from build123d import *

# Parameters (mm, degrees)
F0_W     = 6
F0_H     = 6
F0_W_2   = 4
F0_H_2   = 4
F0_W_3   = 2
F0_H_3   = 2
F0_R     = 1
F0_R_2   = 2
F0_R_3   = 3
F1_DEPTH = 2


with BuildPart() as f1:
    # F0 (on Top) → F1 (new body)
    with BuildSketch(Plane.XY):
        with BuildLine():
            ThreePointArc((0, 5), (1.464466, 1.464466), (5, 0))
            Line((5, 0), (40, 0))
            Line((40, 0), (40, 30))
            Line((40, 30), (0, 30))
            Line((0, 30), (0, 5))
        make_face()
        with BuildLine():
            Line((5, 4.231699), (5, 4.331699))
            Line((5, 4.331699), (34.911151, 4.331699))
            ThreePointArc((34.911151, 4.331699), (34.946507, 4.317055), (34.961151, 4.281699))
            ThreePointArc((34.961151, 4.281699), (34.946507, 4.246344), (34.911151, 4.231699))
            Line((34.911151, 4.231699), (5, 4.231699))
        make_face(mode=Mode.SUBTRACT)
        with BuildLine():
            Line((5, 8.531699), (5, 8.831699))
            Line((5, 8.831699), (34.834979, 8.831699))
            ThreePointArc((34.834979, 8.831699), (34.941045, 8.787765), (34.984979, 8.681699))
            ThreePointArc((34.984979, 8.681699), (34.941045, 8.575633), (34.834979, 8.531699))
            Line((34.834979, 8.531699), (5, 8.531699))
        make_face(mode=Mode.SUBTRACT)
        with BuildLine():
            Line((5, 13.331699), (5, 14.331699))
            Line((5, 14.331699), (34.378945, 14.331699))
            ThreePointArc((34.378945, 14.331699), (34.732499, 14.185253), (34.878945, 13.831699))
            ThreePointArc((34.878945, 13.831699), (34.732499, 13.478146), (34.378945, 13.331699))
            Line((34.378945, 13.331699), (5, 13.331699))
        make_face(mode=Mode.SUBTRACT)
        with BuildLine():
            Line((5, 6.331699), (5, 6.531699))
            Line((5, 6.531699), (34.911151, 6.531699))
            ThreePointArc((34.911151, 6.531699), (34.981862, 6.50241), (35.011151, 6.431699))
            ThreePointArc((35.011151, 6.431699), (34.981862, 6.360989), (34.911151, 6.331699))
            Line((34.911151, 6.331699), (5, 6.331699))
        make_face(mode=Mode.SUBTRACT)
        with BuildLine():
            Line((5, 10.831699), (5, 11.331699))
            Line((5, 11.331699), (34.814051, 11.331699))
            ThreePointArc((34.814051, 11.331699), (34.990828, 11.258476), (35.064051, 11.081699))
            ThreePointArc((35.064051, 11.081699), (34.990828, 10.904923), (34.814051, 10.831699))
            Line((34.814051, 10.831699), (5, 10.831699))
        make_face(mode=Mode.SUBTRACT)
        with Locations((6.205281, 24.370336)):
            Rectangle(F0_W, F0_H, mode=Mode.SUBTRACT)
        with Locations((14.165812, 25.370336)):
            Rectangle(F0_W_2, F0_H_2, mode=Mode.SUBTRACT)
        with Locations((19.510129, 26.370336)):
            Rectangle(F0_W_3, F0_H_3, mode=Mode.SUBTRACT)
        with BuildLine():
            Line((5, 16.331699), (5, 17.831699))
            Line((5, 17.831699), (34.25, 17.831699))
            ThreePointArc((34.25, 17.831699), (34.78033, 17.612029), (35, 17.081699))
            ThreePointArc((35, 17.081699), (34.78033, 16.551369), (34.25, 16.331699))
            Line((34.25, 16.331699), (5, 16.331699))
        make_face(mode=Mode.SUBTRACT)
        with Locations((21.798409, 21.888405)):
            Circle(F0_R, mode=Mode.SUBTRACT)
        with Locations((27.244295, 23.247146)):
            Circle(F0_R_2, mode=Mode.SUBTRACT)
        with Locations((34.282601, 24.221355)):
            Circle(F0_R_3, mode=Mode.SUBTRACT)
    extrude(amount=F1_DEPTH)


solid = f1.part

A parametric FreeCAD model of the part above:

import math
import FreeCAD as App
import Part
import Sketcher

V = App.Vector


def add_polygon(sketch, points):
    """Adds a closed chain of lines whose ends are joined by coincident constraints."""
    first, n = sketch.GeometryCount, len(points)
    for a, b in zip(points, points[1:] + points[:1]):
        sketch.addGeometry(Part.LineSegment(App.Vector(*a, 0), App.Vector(*b, 0)), False)
    for i in range(n):
        sketch.addConstraint(Sketcher.Constraint("Coincident", first + i, 2, first + (i + 1) % n, 1))

doc = App.newDocument("Part")
body = doc.addObject("PartDesign::Body", "Body")

# Sketch on XY plane
sketch1 = body.newObject("Sketcher::SketchObject", "Sketch")
sketch1.AttachmentSupport = (doc.getObject("XY_Plane"), [""])
sketch1.MapMode = "FlatFace"
sketch1.addGeometry(Part.ArcOfCircle(Part.Circle(V(5, 5, 0), V(0, 0, 1), 5), math.radians(179.999996), math.radians(270.000004)), False)  # 0
sketch1.addGeometry(Part.LineSegment(V(5, 0, 0), V(40, 0, 0)), False)  # 1
sketch1.addGeometry(Part.LineSegment(V(40, 0, 0), V(40, 30, 0)), False)  # 2
sketch1.addGeometry(Part.LineSegment(V(40, 30, 0), V(0, 30, 0)), False)  # 3
sketch1.addGeometry(Part.LineSegment(V(0, 30, 0), V(0, 5, 0)), False)  # 4
sketch1.addGeometry(Part.LineSegment(V(34.911151, 4.231699, 0), V(5, 4.231699, 0)), False)  # 5
sketch1.addGeometry(Part.LineSegment(V(5, 4.231699, 0), V(5, 4.331699, 0)), False)  # 6
sketch1.addGeometry(Part.LineSegment(V(5, 4.331699, 0), V(34.911151, 4.331699, 0)), False)  # 7
sketch1.addGeometry(Part.ArcOfCircle(Part.Circle(V(34.911153, 4.281701, 0), V(0, 0, 1), 0.049998), math.radians(-0.002585), math.radians(90.002585)), False)  # 8
sketch1.addGeometry(Part.ArcOfCircle(Part.Circle(V(34.911152, 4.281698, 0), V(0, 0, 1), 0.049999), math.radians(-90.000629), math.radians(0.000629)), False)  # 9
sketch1.addGeometry(Part.LineSegment(V(34.911151, 6.331699, 0), V(5, 6.331699, 0)), False)  # 10
sketch1.addGeometry(Part.LineSegment(V(5, 6.331699, 0), V(5, 6.531699, 0)), False)  # 11
sketch1.addGeometry(Part.LineSegment(V(5, 6.531699, 0), V(34.911151, 6.531699, 0)), False)  # 12
sketch1.addGeometry(Part.ArcOfCircle(Part.Circle(V(34.911152, 6.4317, 0), V(0, 0, 1), 0.099999), math.radians(-0.00063), math.radians(90.00063)), False)  # 13
sketch1.addGeometry(Part.ArcOfCircle(Part.Circle(V(34.91115, 6.4317, 0), V(0, 0, 1), 0.100001), math.radians(-89.999652), math.radians(-0.000348)), False)  # 14
sketch1.addGeometry(Part.LineSegment(V(34.834979, 8.531699, 0), V(5, 8.531699, 0)), False)  # 15
sketch1.addGeometry(Part.LineSegment(V(5, 8.531699, 0), V(5, 8.831699, 0)), False)  # 16
sketch1.addGeometry(Part.LineSegment(V(5, 8.831699, 0), V(34.834979, 8.831699, 0)), False)  # 17
sketch1.addGeometry(Part.ArcOfCircle(Part.Circle(V(34.834979, 8.681699, 0), V(0, 0, 1), 0.15), math.radians(0.000023), math.radians(89.999977)), False)  # 18
sketch1.addGeometry(Part.ArcOfCircle(Part.Circle(V(34.834979, 8.681699, 0), V(0, 0, 1), 0.15), math.radians(-89.999977), math.radians(-0.000023)), False)  # 19
sketch1.addGeometry(Part.LineSegment(V(34.814051, 10.831699, 0), V(5, 10.831699, 0)), False)  # 20
sketch1.addGeometry(Part.LineSegment(V(5, 10.831699, 0), V(5, 11.331699, 0)), False)  # 21
sketch1.addGeometry(Part.LineSegment(V(5, 11.331699, 0), V(34.814051, 11.331699, 0)), False)  # 22
sketch1.addGeometry(Part.ArcOfCircle(Part.Circle(V(34.814052, 11.0817, 0), V(0, 0, 1), 0.249999), math.radians(-0.000238), math.radians(90.000238)), False)  # 23
sketch1.addGeometry(Part.ArcOfCircle(Part.Circle(V(34.81405, 11.0817, 0), V(0, 0, 1), 0.250001), math.radians(-89.999847), math.radians(-0.000153)), False)  # 24
sketch1.addGeometry(Part.LineSegment(V(34.378945, 13.331699, 0), V(5, 13.331699, 0)), False)  # 25
sketch1.addGeometry(Part.LineSegment(V(5, 13.331699, 0), V(5, 14.331699, 0)), False)  # 26
sketch1.addGeometry(Part.LineSegment(V(5, 14.331699, 0), V(34.378945, 14.331699, 0)), False)  # 27
sketch1.addGeometry(Part.ArcOfCircle(Part.Circle(V(34.378947, 13.831701, 0), V(0, 0, 1), 0.499998), math.radians(-0.000238), math.radians(90.000238)), False)  # 28
sketch1.addGeometry(Part.ArcOfCircle(Part.Circle(V(34.378945, 13.831699, 0), V(0, 0, 1), 0.5), math.radians(-90.000043), math.radians(0.000043)), False)  # 29
sketch1.addGeometry(Part.LineSegment(V(34.25, 16.331699, 0), V(5, 16.331699, 0)), False)  # 30
sketch1.addGeometry(Part.LineSegment(V(5, 16.331699, 0), V(5, 17.831699, 0)), False)  # 31
sketch1.addGeometry(Part.LineSegment(V(5, 17.831699, 0), V(34.25, 17.831699, 0)), False)  # 32
sketch1.addGeometry(Part.ArcOfCircle(Part.Circle(V(34.25, 17.081699, 0), V(0, 0, 1), 0.75), math.radians(0.000022), math.radians(89.999978)), False)  # 33
sketch1.addGeometry(Part.ArcOfCircle(Part.Circle(V(34.25, 17.081699, 0), V(0, 0, 1), 0.75), math.radians(-89.999978), math.radians(-0.000022)), False)  # 34
add_polygon(sketch1, [(9.205281, 21.370336), (3.205281, 21.370336), (3.205281, 27.370336), (9.205281, 27.370336)])  # lines 35-38
add_polygon(sketch1, [(16.165812, 23.370336), (12.165812, 23.370336), (12.165812, 27.370336), (16.165812, 27.370336)])  # lines 39-42
add_polygon(sketch1, [(20.510129, 25.370336), (18.510129, 25.370336), (18.510129, 27.370336), (20.510129, 27.370336)])  # lines 43-46
sketch1.addGeometry(Part.Circle(V(21.798409, 21.888405, 0), V(0, 0, 1), 1), False)  # 47
sketch1.addGeometry(Part.Circle(V(27.244295, 23.247146, 0), V(0, 0, 1), 2), False)  # 48
sketch1.addGeometry(Part.Circle(V(34.282601, 24.221355, 0), V(0, 0, 1), 3), False)  # 49
sketch1.addConstraint([
    Sketcher.Constraint("Tangent", 0, 2, 1, 1),
    Sketcher.Constraint("Coincident", 1, 2, 2, 1),
    Sketcher.Constraint("Coincident", 2, 2, 3, 1),
    Sketcher.Constraint("Coincident", 3, 2, 4, 1),
    Sketcher.Constraint("Tangent", 4, 2, 0, 1),
    Sketcher.Constraint("Coincident", 5, 2, 6, 1),
    Sketcher.Constraint("Coincident", 6, 2, 7, 1),
    Sketcher.Constraint("Coincident", 7, 2, 8, 2),
    Sketcher.Constraint("Coincident", 8, 1, 9, 2),
    Sketcher.Constraint("Coincident", 9, 1, 5, 1),
    Sketcher.Constraint("Coincident", 10, 2, 11, 1),
    Sketcher.Constraint("Coincident", 11, 2, 12, 1),
    Sketcher.Constraint("Coincident", 12, 2, 13, 2),
    Sketcher.Constraint("Coincident", 13, 1, 14, 2),
    Sketcher.Constraint("Coincident", 14, 1, 10, 1),
    Sketcher.Constraint("Coincident", 15, 2, 16, 1),
    Sketcher.Constraint("Coincident", 16, 2, 17, 1),
    Sketcher.Constraint("Tangent", 17, 2, 18, 2),
    Sketcher.Constraint("Tangent", 18, 1, 19, 2),
    Sketcher.Constraint("Tangent", 19, 1, 15, 1),
    Sketcher.Constraint("Coincident", 20, 2, 21, 1),
    Sketcher.Constraint("Coincident", 21, 2, 22, 1),
    Sketcher.Constraint("Coincident", 22, 2, 23, 2),
    Sketcher.Constraint("Tangent", 23, 1, 24, 2),
    Sketcher.Constraint("Coincident", 24, 1, 20, 1),
    Sketcher.Constraint("Coincident", 25, 2, 26, 1),
    Sketcher.Constraint("Coincident", 26, 2, 27, 1),
    Sketcher.Constraint("Coincident", 27, 2, 28, 2),
    Sketcher.Constraint("Coincident", 28, 1, 29, 2),
    Sketcher.Constraint("Tangent", 29, 1, 25, 1),
    Sketcher.Constraint("Coincident", 30, 2, 31, 1),
    Sketcher.Constraint("Coincident", 31, 2, 32, 1),
    Sketcher.Constraint("Tangent", 32, 2, 33, 2),
    Sketcher.Constraint("Tangent", 33, 1, 34, 2),
    Sketcher.Constraint("Tangent", 34, 1, 30, 1),
    Sketcher.Constraint("Horizontal", 1),
    Sketcher.Constraint("Vertical", 2),
    Sketcher.Constraint("Horizontal", 3),
    Sketcher.Constraint("Vertical", 4),
    Sketcher.Constraint("Horizontal", 5),
    Sketcher.Constraint("Vertical", 6),
    Sketcher.Constraint("Horizontal", 7),
    Sketcher.Constraint("Horizontal", 10),
    Sketcher.Constraint("Vertical", 11),
    Sketcher.Constraint("Horizontal", 12),
    Sketcher.Constraint("Horizontal", 15),
    Sketcher.Constraint("Vertical", 16),
    Sketcher.Constraint("Horizontal", 17),
    Sketcher.Constraint("Horizontal", 20),
    Sketcher.Constraint("Vertical", 21),
    Sketcher.Constraint("Horizontal", 22),
    Sketcher.Constraint("Horizontal", 25),
    Sketcher.Constraint("Vertical", 26),
    Sketcher.Constraint("Horizontal", 27),
    Sketcher.Constraint("Horizontal", 30),
    Sketcher.Constraint("Vertical", 31),
    Sketcher.Constraint("Horizontal", 32),
    Sketcher.Constraint("Horizontal", 35),
    Sketcher.Constraint("Vertical", 36),
    Sketcher.Constraint("Horizontal", 37),
    Sketcher.Constraint("Vertical", 38),
    Sketcher.Constraint("Horizontal", 39),
    Sketcher.Constraint("Vertical", 40),
    Sketcher.Constraint("Horizontal", 41),
    Sketcher.Constraint("Vertical", 42),
    Sketcher.Constraint("Horizontal", 43),
    Sketcher.Constraint("Vertical", 44),
    Sketcher.Constraint("Horizontal", 45),
    Sketcher.Constraint("Vertical", 46),
    Sketcher.Constraint("Coincident", 9, 3, 8, 3),
    Sketcher.Constraint("Coincident", 14, 3, 13, 3),
    Sketcher.Constraint("Coincident", 29, 3, 28, 3),
    Sketcher.Constraint("Equal", 18, 19),
    Sketcher.Constraint("Equal", 23, 24),
    Sketcher.Constraint("Equal", 33, 34),
    Sketcher.Constraint("PointOnObject", 0, 2, -1),
    Sketcher.Constraint("PointOnObject", 3, 2, -2),
    Sketcher.Constraint("Horizontal", 9, 3, 8, 1),
    Sketcher.Constraint("Horizontal", 14, 3, 13, 1),
    Sketcher.Constraint("Horizontal", 19, 3, 18, 1),
    Sketcher.Constraint("Horizontal", 24, 3, 23, 1),
    Sketcher.Constraint("Horizontal", 29, 3, 28, 1),
    Sketcher.Constraint("Horizontal", 34, 3, 33, 1),
    Sketcher.Constraint("Horizontal", 37, 2, 40, 2),
    Sketcher.Constraint("Horizontal", 41, 2, 44, 2),
    Sketcher.Constraint("Vertical", 9, 3, 13, 3),
    Sketcher.Constraint("Vertical", 0, 2, 5, 2),
    Sketcher.Constraint("Vertical", 14, 3, 7, 2),
    Sketcher.Constraint("Vertical", 7, 2, 9, 1),
    Sketcher.Constraint("Vertical", 6, 2, 10, 2),
    Sketcher.Constraint("Vertical", 9, 1, 12, 2),
    Sketcher.Constraint("Vertical", 12, 2, 14, 1),
    Sketcher.Constraint("Vertical", 11, 2, 15, 2),
    Sketcher.Constraint("Vertical", 16, 2, 20, 2),
    Sketcher.Constraint("Vertical", 24, 3, 22, 2),
    Sketcher.Constraint("Vertical", 22, 2, 24, 1),
    Sketcher.Constraint("Vertical", 21, 2, 25, 2),
    Sketcher.Constraint("Vertical", 29, 3, 27, 2),
    Sketcher.Constraint("Vertical", 26, 2, 30, 2),
    Sketcher.Constraint("Equal", 37, 36),
    Sketcher.Constraint("Equal", 41, 40),
    Sketcher.Constraint("Equal", 45, 44),
    Sketcher.Constraint("Diameter", 47, 2.0),
    Sketcher.Constraint("Diameter", 48, 4.0),
    Sketcher.Constraint("Diameter", 49, 6.0),
    Sketcher.Constraint("Radius", 0, 5.0),
    Sketcher.Constraint("Radius", 13, 0.099999),
    Sketcher.Constraint("Radius", 29, 0.5),
    Sketcher.Constraint("DistanceX", 1, 1, 1, 2, 35.0),
    Sketcher.Constraint("DistanceX", 35, 2, 35, 1, 6.0),
    Sketcher.Constraint("DistanceX", 39, 2, 39, 1, 4.0),
    Sketcher.Constraint("DistanceX", 43, 2, 43, 1, 2.0),
    Sketcher.Constraint("DistanceY", 2, 1, 2, 2, 30.0),
    Sketcher.Constraint("Radius", 9, 0.049999),
    Sketcher.Constraint("Radius", 18, 0.15),
    Sketcher.Constraint("Radius", 23, 0.249999),
    Sketcher.Constraint("Radius", 33, 0.75),
    Sketcher.Constraint("DistanceX", -1, 1, 33, 1, 35.0),
    Sketcher.Constraint("DistanceX", 5, 2, 5, 1, 29.911151),
    Sketcher.Constraint("DistanceX", 15, 2, 15, 1, 29.834979),
    Sketcher.Constraint("DistanceX", 20, 2, 20, 1, 29.814051),
    Sketcher.Constraint("DistanceY", -1, 1, 8, 3, 4.281701),
    Sketcher.Constraint("DistanceY", -1, 1, 13, 3, 6.4317),
    Sketcher.Constraint("DistanceY", -1, 1, 18, 3, 8.681699),
    Sketcher.Constraint("DistanceY", -1, 1, 23, 3, 11.0817),
    Sketcher.Constraint("DistanceY", -1, 1, 28, 3, 13.831701),
    Sketcher.Constraint("DistanceY", -1, 1, 33, 3, 17.081699),
    Sketcher.Constraint("DistanceX", -1, 1, 49, 3, 34.282601),
    Sketcher.Constraint("DistanceX", 25, 2, 25, 1, 29.378945),
    Sketcher.Constraint("DistanceX", -1, 1, 47, 3, 21.798409),
    Sketcher.Constraint("DistanceX", -1, 1, 35, 2, 3.205281),
    Sketcher.Constraint("DistanceX", -1, 1, 41, 2, 16.165812),
    Sketcher.Constraint("DistanceX", -1, 1, 43, 2, 18.510129),
    Sketcher.Constraint("DistanceY", -1, 1, 47, 3, 21.888405),
    Sketcher.Constraint("DistanceX", -1, 1, 48, 3, 27.244295),
    Sketcher.Constraint("DistanceY", -1, 1, 48, 3, 23.247146),
    Sketcher.Constraint("DistanceY", -1, 1, 49, 3, 24.221355),
    Sketcher.Constraint("DistanceY", -1, 1, 35, 2, 21.370336),
])
pad1 = body.newObject("PartDesign::Pad", "Pad")
pad1.Profile = sketch1
pad1.Length = 2

doc.recompute()
